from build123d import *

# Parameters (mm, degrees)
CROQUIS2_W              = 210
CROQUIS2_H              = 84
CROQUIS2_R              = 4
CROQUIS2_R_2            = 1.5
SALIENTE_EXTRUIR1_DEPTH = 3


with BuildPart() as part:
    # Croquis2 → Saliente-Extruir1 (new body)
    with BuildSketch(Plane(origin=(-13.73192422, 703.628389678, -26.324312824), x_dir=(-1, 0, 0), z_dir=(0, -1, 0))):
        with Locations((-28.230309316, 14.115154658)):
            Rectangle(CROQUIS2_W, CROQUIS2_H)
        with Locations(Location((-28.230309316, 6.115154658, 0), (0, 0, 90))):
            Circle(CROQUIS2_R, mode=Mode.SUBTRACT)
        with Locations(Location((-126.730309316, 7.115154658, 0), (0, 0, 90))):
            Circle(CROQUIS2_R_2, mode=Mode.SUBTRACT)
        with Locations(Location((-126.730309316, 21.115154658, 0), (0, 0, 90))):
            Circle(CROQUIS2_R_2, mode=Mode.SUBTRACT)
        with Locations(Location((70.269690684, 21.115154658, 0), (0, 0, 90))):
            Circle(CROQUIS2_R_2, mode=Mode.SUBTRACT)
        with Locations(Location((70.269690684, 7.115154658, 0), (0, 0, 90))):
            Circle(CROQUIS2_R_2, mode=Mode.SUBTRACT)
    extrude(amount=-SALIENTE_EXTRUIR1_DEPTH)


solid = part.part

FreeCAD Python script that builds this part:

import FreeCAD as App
import Part
import Sketcher
Q = App.Units.Quantity


def add_polygon(sketch, points):
    """Adds a closed chain of lines whose ends are joined by coincident constraints."""
    first, n = sketch.GeometryCount, len(points)
    for a, b in zip(points, points[1:] + points[:1]):
        sketch.addGeometry(Part.LineSegment(App.Vector(*a, 0), App.Vector(*b, 0)), False)
    for i in range(n):
        sketch.addConstraint(Sketcher.Constraint("Coincident", first + i, 2, first + (i + 1) % n, 1))

doc = App.newDocument("Part")
params = doc.addObject("Spreadsheet::Sheet", "Params")
for row, (alias, value) in enumerate([
    ("sketch1_diameter", "3 mm"),
    ("sketch1_diameter2", "8 mm"),
    ("sketch1_width", "210 mm"),
    ("sketch1_height", "84 mm"),
    ("pad1_length", "3 mm"),
], start=1):
    params.set(f"A{row}", alias)
    params.set(f"B{row}", "=" + value)
    params.setAlias(f"B{row}", alias)

body = doc.addObject("PartDesign::Body", "Body")

# Sketch on XZ plane
sketch1 = body.newObject("Sketcher::SketchObject", "Sketch")
sketch1.AttachmentSupport = (doc.getObject("XZ_Plane"), [""])
sketch1.MapMode = "FlatFace"
sketch1.AttachmentOffset = App.Placement(App.Vector(0, 0, -703.62839), App.Rotation())
add_polygon(sketch1, [(119.5, -82.4), (119.5, 1.6), (-90.5, 1.6), (-90.5, -82.4)])  # lines 0-3
sketch1.addGeometry(Part.Circle(App.Vector(113, -33.4, 0), App.Vector(0, 0, 1), 1.5), False)  # 4
sketch1.addGeometry(Part.Circle(App.Vector(14.5, -32.4, 0), App.Vector(0, 0, 1), 4), False)  # 5
sketch1.addGeometry(Part.Circle(App.Vector(-84, -33.4, 0), App.Vector(0, 0, 1), 1.5), False)  # 6
sketch1.addGeometry(Part.Circle(App.Vector(113, -47.4, 0), App.Vector(0, 0, 1), 1.5), False)  # 7
sketch1.addGeometry(Part.Circle(App.Vector(-84, -47.4, 0), App.Vector(0, 0, 1), 1.5), False)  # 8
sketch1.addConstraint(Sketcher.Constraint("Vertical", 0))
sketch1.addConstraint(Sketcher.Constraint("Horizontal", 1))
sketch1.addConstraint(Sketcher.Constraint("Vertical", 2))
sketch1.addConstraint(Sketcher.Constraint("Horizontal", 3))
sketch1.addConstraint(Sketcher.Constraint("Equal", 4, 6))
sketch1.addConstraint(Sketcher.Constraint("Equal", 6, 7))
sketch1.addConstraint(Sketcher.Constraint("Equal", 7, 8))
sketch1.addConstraint(Sketcher.Constraint("Horizontal", 4, 3, 6, 3))
sketch1.addConstraint(Sketcher.Constraint("Horizontal", 7, 3, 8, 3))
sketch1.addConstraint(Sketcher.Constraint("Vertical", 4, 3, 7, 3))
sketch1.addConstraint(Sketcher.Constraint("Vertical", 6, 3, 8, 3))
sketch1.addConstraint(Sketcher.Constraint("Diameter", 4, Q("3 mm")))
sketch1.addConstraint(Sketcher.Constraint("Diameter", 5, Q("8 mm")))
sketch1.addConstraint(Sketcher.Constraint("DistanceX", 1, 2, 1, 1, Q("210 mm")))
sketch1.addConstraint(Sketcher.Constraint("DistanceY", 0, 1, 0, 2, Q("84 mm")))
sketch1.addConstraint(Sketcher.Constraint("DistanceY", 4, 3, 5, 3, Q("1 mm")))
sketch1.addConstraint(Sketcher.Constraint("DistanceX", 6, 3, 4, 3, Q("197 mm")))
sketch1.addConstraint(Sketcher.Constraint("DistanceY", 7, 3, 4, 3, Q("14 mm")))
sketch1.addConstraint(Sketcher.Constraint("DistanceY", 4, 3, 0, 2, Q("35 mm")))
sketch1.addConstraint(Sketcher.Constraint("DistanceX", 5, 3, 0, 2, Q("105 mm")))
sketch1.addConstraint(Sketcher.Constraint("DistanceX", 5, 3, 4, 3, Q("98.5 mm")))
sketch1.addConstraint(Sketcher.Constraint("DistanceX", -1, 1, 4, 3, Q("112.998385 mm")))
sketch1.addConstraint(Sketcher.Constraint("DistanceY", 4, 3, -1, 1, Q("33.439467 mm")))
sketch1.setExpression("Constraints[15]", "Params.sketch1_diameter")
sketch1.setExpression("Constraints[16]", "Params.sketch1_diameter2")
sketch1.setExpression("Constraints[17]", "Params.sketch1_width")
sketch1.setExpression("Constraints[18]", "Params.sketch1_height")
pad1 = body.newObject("PartDesign::Pad", "Pad")
pad1.Profile = sketch1
pad1.setExpression("Length", "Params.pad1_length")
pad1.Reversed = True

doc.recompute()
